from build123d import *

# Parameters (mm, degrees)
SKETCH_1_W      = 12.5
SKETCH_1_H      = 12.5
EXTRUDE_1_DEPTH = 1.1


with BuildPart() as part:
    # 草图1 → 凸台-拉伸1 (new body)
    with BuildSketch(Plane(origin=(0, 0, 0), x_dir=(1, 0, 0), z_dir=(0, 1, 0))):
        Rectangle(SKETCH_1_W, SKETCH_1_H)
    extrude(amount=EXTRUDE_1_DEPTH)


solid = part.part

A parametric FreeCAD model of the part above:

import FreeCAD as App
import Part
import Sketcher
from FreeCAD import Vector


def add_polygon(sketch, points):
    """Adds a closed chain of lines whose ends are joined by coincident constraints."""
    first, n = sketch.GeometryCount, len(points)
    for a, b in zip(points, points[1:] + points[:1]):
        sketch.addGeometry(Part.LineSegment(App.Vector(*a, 0), App.Vector(*b, 0)), False)
    for i in range(n):
        sketch.addConstraint(Sketcher.Constraint("Coincident", first + i, 2, first + (i + 1) % n, 1))

doc = App.newDocument("Part")
body = doc.addObject("PartDesign::Body", "Body")

sketch1 = body.newObject("Sketcher::SketchObject", "Sketch")
sketch1.AttachmentSupport = (doc.getObject("XZ_Plane"), [""])
sketch1.MapMode = "FlatFace"
add_polygon(sketch1, [(-6, -6), (-6, 6), (6, 6), (6, -6)])
sketch1.addConstraint([
    Sketcher.Constraint("Vertical", 0),
    Sketcher.Constraint("Horizontal", 1),
    Sketcher.Constraint("Vertical", 2),
    Sketcher.Constraint("Horizontal", 3),
    Sketcher.Constraint("Symmetric", 0, 2, 2, 2, -1, 1),
    Sketcher.Constraint("Equal", 3, 0),
    Sketcher.Constraint("DistanceX", 1, 1, 1, 2, 12.5),
])
pad1 = body.newObject("PartDesign::Pad", "Pad")
pad1.Profile = sketch1
pad1.Length = 1.1
pad1.Reversed = True

doc.recompute()
